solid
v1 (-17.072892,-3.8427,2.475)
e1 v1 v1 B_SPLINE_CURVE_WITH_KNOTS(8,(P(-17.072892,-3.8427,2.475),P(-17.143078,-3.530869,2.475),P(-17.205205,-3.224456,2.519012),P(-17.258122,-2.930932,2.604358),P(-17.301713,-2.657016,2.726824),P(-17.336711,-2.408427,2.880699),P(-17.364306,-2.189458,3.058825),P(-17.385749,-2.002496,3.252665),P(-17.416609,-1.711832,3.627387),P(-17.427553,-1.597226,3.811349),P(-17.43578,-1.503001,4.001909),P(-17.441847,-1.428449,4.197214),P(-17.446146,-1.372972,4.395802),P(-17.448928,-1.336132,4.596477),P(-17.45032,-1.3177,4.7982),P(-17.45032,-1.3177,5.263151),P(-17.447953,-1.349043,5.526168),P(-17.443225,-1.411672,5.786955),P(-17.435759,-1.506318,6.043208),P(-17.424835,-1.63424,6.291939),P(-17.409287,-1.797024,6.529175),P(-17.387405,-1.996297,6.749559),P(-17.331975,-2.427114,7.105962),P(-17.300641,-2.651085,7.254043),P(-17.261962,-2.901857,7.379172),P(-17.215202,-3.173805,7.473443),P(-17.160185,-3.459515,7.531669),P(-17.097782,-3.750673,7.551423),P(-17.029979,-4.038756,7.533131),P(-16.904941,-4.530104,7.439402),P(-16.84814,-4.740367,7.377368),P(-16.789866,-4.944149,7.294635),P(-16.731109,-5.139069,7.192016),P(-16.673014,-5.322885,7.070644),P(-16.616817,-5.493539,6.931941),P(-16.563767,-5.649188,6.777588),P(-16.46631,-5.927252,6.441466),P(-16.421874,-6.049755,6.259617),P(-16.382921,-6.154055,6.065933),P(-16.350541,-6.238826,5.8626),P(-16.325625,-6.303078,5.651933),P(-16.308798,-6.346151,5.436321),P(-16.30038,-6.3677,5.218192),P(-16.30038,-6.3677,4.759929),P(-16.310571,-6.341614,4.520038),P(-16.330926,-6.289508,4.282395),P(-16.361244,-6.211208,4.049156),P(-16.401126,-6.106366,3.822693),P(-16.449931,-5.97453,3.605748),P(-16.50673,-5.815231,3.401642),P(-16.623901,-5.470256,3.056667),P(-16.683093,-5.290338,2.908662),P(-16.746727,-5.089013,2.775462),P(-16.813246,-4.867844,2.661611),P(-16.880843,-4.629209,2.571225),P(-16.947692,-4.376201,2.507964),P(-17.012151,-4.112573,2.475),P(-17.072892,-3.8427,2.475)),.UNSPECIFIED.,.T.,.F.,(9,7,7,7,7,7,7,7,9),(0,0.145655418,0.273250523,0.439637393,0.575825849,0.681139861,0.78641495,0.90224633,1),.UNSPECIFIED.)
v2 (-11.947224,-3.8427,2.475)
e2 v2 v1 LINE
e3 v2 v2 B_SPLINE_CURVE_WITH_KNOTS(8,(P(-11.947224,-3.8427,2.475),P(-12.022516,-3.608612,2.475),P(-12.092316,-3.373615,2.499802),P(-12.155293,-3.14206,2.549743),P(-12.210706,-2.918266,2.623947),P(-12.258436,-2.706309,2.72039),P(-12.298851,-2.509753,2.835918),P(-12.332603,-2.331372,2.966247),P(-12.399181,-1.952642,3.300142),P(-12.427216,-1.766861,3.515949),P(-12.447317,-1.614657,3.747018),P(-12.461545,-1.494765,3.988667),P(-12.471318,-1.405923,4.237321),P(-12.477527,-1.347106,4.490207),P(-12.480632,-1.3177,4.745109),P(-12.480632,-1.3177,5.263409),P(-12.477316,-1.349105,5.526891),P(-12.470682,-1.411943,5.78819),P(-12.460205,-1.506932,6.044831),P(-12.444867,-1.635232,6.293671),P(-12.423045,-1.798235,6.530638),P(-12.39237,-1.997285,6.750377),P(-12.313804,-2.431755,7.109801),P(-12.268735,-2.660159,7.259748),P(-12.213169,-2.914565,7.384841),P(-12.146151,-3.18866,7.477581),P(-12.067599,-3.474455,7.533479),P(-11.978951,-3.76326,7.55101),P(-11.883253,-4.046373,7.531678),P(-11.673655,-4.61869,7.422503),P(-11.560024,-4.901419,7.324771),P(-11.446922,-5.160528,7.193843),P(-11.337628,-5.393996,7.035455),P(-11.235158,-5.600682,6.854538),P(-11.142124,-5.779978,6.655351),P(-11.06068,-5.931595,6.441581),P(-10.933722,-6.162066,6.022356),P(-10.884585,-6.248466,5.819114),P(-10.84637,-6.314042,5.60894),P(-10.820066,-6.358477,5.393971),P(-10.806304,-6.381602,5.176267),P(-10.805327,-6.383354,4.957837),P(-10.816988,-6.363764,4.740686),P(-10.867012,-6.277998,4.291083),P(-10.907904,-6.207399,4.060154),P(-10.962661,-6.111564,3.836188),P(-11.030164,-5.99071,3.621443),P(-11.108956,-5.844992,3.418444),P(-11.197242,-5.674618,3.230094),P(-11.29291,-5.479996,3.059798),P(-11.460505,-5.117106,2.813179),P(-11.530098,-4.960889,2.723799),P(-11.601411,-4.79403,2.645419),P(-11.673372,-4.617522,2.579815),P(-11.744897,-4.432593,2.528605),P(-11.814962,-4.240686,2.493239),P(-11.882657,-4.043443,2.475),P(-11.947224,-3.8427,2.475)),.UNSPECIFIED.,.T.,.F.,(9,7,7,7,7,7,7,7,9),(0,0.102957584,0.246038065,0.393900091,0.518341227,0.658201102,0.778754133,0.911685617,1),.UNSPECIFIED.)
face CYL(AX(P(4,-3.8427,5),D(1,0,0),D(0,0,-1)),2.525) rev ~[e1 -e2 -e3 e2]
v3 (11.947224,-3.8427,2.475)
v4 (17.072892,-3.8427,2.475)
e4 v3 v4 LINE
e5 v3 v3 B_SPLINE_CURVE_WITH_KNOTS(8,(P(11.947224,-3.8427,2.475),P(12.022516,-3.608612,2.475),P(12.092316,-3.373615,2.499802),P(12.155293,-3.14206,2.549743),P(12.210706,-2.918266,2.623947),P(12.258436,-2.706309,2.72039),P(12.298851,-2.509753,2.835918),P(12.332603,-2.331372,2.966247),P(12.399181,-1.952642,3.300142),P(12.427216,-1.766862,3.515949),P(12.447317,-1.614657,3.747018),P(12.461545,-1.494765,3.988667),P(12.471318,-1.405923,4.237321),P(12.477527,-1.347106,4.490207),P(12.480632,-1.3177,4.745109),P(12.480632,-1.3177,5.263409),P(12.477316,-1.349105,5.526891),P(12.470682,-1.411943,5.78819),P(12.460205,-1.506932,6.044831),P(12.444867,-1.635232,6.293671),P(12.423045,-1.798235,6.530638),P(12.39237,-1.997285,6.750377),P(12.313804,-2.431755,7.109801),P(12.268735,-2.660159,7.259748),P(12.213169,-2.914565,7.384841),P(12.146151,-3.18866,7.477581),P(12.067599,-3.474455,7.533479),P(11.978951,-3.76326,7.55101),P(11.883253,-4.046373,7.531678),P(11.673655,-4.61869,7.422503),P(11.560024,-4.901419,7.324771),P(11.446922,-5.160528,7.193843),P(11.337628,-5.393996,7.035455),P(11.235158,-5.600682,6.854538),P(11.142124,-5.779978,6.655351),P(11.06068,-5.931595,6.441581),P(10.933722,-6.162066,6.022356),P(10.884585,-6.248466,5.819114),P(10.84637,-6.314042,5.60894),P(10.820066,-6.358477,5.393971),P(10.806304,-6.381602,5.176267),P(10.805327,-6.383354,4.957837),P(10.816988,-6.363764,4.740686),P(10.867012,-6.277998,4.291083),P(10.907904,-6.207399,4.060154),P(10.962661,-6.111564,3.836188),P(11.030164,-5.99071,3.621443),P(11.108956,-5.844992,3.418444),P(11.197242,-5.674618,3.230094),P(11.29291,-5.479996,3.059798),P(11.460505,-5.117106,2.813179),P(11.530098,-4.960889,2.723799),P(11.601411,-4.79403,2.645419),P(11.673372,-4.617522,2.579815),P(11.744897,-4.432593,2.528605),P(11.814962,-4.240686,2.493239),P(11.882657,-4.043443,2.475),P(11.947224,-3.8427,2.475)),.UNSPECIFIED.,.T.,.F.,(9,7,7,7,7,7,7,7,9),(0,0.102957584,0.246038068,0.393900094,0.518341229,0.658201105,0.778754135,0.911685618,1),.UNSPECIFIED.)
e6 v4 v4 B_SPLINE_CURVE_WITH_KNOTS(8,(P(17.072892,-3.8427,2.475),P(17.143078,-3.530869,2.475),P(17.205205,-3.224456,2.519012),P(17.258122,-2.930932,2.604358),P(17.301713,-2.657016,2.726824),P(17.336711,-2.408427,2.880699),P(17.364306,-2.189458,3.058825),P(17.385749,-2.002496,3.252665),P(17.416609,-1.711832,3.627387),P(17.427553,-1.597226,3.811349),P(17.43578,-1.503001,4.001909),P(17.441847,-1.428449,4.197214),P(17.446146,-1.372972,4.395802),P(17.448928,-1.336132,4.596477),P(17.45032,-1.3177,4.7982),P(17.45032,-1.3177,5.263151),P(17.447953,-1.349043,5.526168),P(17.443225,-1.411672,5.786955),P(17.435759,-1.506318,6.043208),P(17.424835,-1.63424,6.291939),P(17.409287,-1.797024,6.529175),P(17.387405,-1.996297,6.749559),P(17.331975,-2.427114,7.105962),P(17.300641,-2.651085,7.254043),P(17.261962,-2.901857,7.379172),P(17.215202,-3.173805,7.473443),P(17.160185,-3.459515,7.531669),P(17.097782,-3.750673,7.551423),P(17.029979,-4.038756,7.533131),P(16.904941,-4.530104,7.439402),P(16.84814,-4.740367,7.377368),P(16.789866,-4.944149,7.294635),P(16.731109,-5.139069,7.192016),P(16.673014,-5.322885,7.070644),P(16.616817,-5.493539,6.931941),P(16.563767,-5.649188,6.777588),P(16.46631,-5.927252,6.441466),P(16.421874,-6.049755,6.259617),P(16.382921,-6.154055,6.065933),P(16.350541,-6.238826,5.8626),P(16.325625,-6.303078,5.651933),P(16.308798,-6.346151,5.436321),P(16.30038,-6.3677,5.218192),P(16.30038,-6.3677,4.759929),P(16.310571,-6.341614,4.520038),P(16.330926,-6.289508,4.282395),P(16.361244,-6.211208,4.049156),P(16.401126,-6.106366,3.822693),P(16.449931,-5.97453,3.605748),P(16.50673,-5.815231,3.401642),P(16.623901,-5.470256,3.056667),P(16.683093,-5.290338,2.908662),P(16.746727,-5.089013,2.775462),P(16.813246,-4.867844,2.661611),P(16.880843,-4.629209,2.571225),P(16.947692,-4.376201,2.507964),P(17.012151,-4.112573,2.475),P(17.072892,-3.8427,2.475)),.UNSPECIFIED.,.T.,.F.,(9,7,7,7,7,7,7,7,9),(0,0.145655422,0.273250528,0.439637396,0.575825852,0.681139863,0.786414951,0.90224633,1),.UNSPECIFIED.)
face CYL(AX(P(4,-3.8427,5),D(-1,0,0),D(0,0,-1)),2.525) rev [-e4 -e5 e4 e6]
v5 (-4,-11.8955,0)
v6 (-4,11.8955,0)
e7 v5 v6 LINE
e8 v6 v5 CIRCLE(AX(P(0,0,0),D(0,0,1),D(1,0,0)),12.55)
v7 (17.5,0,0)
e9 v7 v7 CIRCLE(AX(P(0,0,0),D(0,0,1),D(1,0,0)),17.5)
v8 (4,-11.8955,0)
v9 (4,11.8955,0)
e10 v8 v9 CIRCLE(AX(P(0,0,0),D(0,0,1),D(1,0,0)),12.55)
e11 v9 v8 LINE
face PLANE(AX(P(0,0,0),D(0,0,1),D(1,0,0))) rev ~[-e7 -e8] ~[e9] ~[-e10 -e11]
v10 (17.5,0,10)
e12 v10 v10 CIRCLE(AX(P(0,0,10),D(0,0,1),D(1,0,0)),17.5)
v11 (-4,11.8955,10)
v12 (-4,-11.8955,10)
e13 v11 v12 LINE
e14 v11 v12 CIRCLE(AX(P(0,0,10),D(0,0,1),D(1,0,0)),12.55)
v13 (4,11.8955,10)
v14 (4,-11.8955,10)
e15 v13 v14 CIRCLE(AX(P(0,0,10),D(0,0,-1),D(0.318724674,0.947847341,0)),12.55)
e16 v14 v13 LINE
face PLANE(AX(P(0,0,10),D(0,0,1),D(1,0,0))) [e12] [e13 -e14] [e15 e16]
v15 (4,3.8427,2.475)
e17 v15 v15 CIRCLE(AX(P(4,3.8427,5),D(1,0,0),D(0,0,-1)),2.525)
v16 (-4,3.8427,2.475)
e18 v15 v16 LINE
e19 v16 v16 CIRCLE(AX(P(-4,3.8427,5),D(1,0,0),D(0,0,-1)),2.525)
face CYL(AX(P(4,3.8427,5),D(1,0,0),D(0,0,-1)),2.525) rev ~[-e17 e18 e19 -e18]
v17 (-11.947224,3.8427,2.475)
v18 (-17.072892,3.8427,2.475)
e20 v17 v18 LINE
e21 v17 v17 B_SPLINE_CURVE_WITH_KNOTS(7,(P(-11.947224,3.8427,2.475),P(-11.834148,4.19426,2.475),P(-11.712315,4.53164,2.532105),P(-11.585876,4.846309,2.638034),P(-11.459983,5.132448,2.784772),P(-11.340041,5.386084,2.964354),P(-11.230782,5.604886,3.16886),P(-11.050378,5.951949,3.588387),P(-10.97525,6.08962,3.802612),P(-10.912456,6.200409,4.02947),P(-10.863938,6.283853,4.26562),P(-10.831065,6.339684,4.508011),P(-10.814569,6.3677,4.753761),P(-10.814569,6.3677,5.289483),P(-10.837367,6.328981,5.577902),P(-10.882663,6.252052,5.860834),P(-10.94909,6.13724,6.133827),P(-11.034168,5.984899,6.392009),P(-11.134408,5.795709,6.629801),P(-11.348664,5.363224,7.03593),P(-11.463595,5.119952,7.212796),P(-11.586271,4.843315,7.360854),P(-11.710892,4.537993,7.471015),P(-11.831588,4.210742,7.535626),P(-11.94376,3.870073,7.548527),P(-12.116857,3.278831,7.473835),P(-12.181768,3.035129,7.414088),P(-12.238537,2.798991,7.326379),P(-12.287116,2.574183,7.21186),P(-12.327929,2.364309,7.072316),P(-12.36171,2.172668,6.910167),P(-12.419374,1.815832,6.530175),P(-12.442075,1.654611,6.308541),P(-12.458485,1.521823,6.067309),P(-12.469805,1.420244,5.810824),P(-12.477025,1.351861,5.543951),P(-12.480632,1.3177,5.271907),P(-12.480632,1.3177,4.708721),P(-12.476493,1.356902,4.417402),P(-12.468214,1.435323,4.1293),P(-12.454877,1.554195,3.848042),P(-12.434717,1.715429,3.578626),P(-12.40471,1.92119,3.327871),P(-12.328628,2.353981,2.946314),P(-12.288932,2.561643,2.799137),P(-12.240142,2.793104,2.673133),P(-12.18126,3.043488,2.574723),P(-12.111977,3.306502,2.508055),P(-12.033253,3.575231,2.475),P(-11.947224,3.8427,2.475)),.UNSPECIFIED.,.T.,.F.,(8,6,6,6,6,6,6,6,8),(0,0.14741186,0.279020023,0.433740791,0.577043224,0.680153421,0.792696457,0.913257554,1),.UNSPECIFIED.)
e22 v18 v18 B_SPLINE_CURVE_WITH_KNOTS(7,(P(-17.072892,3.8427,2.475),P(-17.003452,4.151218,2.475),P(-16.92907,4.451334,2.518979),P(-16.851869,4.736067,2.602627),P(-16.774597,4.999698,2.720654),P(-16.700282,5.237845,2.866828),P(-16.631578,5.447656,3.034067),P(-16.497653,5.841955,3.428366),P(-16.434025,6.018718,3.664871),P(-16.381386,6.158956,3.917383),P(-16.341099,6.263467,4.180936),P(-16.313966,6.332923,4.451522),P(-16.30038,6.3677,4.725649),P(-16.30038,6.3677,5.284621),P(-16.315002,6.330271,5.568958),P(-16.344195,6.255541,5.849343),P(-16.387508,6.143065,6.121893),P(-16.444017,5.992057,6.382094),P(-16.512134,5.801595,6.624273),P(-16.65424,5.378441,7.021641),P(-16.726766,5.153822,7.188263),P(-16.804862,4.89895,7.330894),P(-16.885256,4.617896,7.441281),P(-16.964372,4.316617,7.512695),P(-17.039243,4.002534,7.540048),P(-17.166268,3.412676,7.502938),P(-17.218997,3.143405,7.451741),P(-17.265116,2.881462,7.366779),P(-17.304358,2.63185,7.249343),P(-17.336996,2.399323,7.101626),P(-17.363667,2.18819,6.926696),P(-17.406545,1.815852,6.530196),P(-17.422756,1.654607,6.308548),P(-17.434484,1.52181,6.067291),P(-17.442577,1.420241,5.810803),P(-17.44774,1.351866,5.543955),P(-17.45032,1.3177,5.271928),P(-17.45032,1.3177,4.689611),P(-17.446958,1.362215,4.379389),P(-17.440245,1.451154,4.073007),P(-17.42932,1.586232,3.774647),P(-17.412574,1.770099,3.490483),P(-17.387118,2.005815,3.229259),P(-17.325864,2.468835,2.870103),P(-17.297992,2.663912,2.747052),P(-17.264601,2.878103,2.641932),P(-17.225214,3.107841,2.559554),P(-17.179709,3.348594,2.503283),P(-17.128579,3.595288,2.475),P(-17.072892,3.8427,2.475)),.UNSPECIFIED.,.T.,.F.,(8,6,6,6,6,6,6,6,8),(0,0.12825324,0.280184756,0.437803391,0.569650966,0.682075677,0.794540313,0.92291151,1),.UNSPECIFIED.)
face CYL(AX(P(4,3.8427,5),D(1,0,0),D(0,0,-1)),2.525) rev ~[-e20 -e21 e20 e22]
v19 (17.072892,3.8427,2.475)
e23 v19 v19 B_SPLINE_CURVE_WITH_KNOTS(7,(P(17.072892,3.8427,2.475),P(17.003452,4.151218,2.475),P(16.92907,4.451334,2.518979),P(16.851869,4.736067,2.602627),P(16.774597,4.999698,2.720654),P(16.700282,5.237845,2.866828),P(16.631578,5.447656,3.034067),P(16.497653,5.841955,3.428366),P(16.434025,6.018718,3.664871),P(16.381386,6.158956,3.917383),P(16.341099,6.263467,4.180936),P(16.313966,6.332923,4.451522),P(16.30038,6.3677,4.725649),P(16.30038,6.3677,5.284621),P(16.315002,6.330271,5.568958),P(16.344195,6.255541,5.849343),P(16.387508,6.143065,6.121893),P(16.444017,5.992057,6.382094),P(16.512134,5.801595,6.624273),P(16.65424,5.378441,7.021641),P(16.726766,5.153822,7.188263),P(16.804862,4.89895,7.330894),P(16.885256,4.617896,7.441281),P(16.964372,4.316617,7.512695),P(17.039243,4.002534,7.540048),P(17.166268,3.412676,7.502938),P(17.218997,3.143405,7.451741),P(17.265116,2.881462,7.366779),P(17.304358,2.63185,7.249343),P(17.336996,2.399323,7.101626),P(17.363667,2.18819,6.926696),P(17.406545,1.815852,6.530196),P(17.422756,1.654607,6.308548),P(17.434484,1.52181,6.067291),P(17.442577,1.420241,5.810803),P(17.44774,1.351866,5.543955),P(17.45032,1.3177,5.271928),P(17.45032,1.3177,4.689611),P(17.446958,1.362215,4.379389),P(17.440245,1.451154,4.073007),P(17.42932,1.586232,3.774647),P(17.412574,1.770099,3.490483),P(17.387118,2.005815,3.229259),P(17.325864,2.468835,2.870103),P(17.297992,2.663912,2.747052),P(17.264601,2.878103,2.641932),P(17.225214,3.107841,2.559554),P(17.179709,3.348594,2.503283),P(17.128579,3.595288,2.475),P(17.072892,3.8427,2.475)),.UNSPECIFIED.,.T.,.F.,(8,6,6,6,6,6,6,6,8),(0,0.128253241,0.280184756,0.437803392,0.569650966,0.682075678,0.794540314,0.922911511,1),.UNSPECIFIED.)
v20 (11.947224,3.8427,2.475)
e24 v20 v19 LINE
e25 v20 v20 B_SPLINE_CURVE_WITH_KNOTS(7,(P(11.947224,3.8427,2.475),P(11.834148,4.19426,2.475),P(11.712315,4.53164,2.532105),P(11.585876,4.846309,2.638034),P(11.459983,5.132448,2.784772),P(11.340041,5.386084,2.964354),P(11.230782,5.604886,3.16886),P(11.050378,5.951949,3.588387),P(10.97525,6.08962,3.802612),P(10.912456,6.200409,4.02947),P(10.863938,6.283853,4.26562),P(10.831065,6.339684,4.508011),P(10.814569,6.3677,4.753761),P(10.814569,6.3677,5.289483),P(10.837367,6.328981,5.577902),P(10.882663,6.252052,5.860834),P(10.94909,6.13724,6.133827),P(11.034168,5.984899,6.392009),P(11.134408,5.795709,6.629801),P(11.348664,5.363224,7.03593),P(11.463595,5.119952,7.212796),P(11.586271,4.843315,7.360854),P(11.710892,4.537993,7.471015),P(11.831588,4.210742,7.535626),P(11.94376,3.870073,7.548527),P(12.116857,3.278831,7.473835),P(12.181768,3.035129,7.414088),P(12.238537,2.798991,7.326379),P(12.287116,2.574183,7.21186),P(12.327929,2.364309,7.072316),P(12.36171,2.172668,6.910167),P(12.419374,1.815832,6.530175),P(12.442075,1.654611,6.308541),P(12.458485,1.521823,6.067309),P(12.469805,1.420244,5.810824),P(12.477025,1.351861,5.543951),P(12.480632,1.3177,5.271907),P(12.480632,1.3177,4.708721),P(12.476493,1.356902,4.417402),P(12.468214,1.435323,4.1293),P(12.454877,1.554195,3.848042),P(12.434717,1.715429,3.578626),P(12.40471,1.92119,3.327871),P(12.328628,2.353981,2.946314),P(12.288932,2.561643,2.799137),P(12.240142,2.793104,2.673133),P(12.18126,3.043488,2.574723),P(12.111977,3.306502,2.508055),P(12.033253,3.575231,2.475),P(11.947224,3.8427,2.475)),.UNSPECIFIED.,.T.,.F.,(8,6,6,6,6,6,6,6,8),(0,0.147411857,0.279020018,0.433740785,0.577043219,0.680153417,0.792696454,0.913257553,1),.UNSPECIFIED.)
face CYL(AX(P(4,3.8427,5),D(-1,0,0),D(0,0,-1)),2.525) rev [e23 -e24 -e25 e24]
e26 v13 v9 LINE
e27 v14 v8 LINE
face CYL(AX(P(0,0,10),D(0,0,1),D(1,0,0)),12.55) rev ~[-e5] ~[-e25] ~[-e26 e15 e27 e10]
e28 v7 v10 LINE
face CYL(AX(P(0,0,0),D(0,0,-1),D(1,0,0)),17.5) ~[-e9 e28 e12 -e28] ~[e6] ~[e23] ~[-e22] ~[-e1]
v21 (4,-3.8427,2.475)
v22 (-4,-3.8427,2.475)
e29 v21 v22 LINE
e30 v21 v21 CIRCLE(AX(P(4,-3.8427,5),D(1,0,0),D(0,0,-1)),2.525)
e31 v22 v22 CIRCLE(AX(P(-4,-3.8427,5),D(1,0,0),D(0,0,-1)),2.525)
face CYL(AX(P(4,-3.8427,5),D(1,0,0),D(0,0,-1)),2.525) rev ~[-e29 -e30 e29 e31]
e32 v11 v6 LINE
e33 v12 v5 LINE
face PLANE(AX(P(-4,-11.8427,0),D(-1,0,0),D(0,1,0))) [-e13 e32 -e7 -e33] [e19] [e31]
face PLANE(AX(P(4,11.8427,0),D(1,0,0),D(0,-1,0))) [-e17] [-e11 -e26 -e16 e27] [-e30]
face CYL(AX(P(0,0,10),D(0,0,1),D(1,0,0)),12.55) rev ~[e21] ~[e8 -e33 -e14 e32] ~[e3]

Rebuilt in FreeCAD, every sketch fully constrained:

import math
import FreeCAD as App
import Part
import Sketcher
Q = App.Units.Quantity

doc = App.newDocument("Part")
body = doc.addObject("PartDesign::Body", "Body")

# Sketch on XY plane
sketch1 = body.newObject("Sketcher::SketchObject", "Sketch")
sketch1.AttachmentSupport = (doc.getObject("XY_Plane"), [""])
sketch1.MapMode = "FlatFace"
sketch1.addGeometry([
    Part.Circle(App.Vector(0, 0, 0), App.Vector(0, 0, 1), 17.5),  # 0
    Part.LineSegment(App.Vector(-4, 11.8427, 0), App.Vector(-4, -11.8427, 0)),  # 1
    Part.ArcOfCircle(Part.Circle(App.Vector(0, 0, 0), App.Vector(0, 0, 1), 12.499982), math.radians(108.662953), math.radians(251.337047)),  # 2
    Part.LineSegment(App.Vector(4, -11.8427, 0), App.Vector(4, 11.8427, 0)),  # 3
    Part.ArcOfCircle(Part.Circle(App.Vector(0, 0, 0), App.Vector(0, 0, 1), 12.499982), math.radians(-71.337047), math.radians(71.337047)),  # 4
], False)
sketch1.addConstraint([
    Sketcher.Constraint("Coincident", 1, 1, 2, 1),
    Sketcher.Constraint("Coincident", 2, 2, 1, 2),
    Sketcher.Constraint("Coincident", 3, 1, 4, 1),
    Sketcher.Constraint("Coincident", 4, 2, 3, 2),
    Sketcher.Constraint("Vertical", 1),
    Sketcher.Constraint("Vertical", 3),
    Sketcher.Constraint("Coincident", 0, 3, -1, 1),
    Sketcher.Constraint("Coincident", 2, 3, -1, 1),
    Sketcher.Constraint("Coincident", 4, 3, -1, 1),
    Sketcher.Constraint("Equal", 2, 4),
    Sketcher.Constraint("Horizontal", 2, 2, 3, 1),
    Sketcher.Constraint("Diameter", 0, Q("35 mm")),
    Sketcher.Constraint("Radius", 2, Q("12.5 mm")),
    Sketcher.Constraint("DistanceX", 1, 1, -1, 1, Q("4 mm")),
])
pad1 = body.newObject("PartDesign::Pad", "Pad")
pad1.Profile = sketch1
pad1.Length = 10

# Sketch on YZ plane
sketch2 = body.newObject("Sketcher::SketchObject", "Sketch001")
sketch2.AttachmentSupport = (doc.getObject("YZ_Plane"), [""])
sketch2.MapMode = "FlatFace"
sketch2.AttachmentOffset = App.Placement(App.Vector(0, 0, 4), App.Rotation())
sketch2.addGeometry([
    Part.Circle(App.Vector(3.8427, 5, 0), App.Vector(0, 0, 1), 2.525),
    Part.Circle(App.Vector(-3.8427, 5, 0), App.Vector(0, 0, 1), 2.525),
], False)
sketch2.addConstraint([
    Sketcher.Constraint("Equal", 0, 1),
    Sketcher.Constraint("Symmetric", 0, 3, 1, 3, -2),
    Sketcher.Constraint("Diameter", 0, Q("5.05 mm")),
    Sketcher.Constraint("DistanceY", -1, 1, 0, 3, Q("5 mm")),
    Sketcher.Constraint("DistanceX", -1, 1, 0, 3, Q("3.8427 mm")),
])
pocket1 = body.newObject("PartDesign::Pocket", "Pocket")
pocket1.Profile = sketch2
pocket1.Length = 500
pocket1.Midplane = True

# Sketch on XY plane
sketch3 = body.newObject("Sketcher::SketchObject", "Sketch002")
sketch3.AttachmentSupport = (doc.getObject("XY_Plane"), [""])
sketch3.MapMode = "FlatFace"
sketch3.AttachmentOffset = App.Placement(App.Vector(0, 0, 10), App.Rotation())
sketch3.addGeometry([
    Part.ArcOfCircle(Part.Circle(App.Vector(0, 0, 0), App.Vector(0, 0, 1), 12.55), math.radians(-71.414184), math.radians(71.414184)),
    Part.LineSegment(App.Vector(4, -11.8955, 0), App.Vector(4, 11.8955, 0)),
    Part.LineSegment(App.Vector(-4, -11.8955, 0), App.Vector(-4, 11.8955, 0)),
    Part.ArcOfCircle(Part.Circle(App.Vector(0, 0, 0), App.Vector(0, 0, 1), 12.55), math.radians(108.585816), math.radians(251.414184)),
], False)
sketch3.addConstraint([
    Sketcher.Constraint("Coincident", 0, 1, 1, 1),
    Sketcher.Constraint("Coincident", 1, 2, 0, 2),
    Sketcher.Constraint("Coincident", 2, 1, 3, 2),
    Sketcher.Constraint("Coincident", 3, 1, 2, 2),
    Sketcher.Constraint("Vertical", 1),
    Sketcher.Constraint("Vertical", 2),
    Sketcher.Constraint("Coincident", 0, 3, -1, 1),
    Sketcher.Constraint("Coincident", 3, 3, -1, 1),
    Sketcher.Constraint("Equal", 0, 3),
    Sketcher.Constraint("Horizontal", 0, 1, 2, 1),
    Sketcher.Constraint("Radius", 0, Q("12.55 mm")),
    Sketcher.Constraint("DistanceX", -1, 1, 0, 1, Q("4 mm")),
])
pocket2 = body.newObject("PartDesign::Pocket", "Pocket001")
pocket2.Profile = sketch3
pocket2.Type = "ThroughAll"

doc.recompute()
